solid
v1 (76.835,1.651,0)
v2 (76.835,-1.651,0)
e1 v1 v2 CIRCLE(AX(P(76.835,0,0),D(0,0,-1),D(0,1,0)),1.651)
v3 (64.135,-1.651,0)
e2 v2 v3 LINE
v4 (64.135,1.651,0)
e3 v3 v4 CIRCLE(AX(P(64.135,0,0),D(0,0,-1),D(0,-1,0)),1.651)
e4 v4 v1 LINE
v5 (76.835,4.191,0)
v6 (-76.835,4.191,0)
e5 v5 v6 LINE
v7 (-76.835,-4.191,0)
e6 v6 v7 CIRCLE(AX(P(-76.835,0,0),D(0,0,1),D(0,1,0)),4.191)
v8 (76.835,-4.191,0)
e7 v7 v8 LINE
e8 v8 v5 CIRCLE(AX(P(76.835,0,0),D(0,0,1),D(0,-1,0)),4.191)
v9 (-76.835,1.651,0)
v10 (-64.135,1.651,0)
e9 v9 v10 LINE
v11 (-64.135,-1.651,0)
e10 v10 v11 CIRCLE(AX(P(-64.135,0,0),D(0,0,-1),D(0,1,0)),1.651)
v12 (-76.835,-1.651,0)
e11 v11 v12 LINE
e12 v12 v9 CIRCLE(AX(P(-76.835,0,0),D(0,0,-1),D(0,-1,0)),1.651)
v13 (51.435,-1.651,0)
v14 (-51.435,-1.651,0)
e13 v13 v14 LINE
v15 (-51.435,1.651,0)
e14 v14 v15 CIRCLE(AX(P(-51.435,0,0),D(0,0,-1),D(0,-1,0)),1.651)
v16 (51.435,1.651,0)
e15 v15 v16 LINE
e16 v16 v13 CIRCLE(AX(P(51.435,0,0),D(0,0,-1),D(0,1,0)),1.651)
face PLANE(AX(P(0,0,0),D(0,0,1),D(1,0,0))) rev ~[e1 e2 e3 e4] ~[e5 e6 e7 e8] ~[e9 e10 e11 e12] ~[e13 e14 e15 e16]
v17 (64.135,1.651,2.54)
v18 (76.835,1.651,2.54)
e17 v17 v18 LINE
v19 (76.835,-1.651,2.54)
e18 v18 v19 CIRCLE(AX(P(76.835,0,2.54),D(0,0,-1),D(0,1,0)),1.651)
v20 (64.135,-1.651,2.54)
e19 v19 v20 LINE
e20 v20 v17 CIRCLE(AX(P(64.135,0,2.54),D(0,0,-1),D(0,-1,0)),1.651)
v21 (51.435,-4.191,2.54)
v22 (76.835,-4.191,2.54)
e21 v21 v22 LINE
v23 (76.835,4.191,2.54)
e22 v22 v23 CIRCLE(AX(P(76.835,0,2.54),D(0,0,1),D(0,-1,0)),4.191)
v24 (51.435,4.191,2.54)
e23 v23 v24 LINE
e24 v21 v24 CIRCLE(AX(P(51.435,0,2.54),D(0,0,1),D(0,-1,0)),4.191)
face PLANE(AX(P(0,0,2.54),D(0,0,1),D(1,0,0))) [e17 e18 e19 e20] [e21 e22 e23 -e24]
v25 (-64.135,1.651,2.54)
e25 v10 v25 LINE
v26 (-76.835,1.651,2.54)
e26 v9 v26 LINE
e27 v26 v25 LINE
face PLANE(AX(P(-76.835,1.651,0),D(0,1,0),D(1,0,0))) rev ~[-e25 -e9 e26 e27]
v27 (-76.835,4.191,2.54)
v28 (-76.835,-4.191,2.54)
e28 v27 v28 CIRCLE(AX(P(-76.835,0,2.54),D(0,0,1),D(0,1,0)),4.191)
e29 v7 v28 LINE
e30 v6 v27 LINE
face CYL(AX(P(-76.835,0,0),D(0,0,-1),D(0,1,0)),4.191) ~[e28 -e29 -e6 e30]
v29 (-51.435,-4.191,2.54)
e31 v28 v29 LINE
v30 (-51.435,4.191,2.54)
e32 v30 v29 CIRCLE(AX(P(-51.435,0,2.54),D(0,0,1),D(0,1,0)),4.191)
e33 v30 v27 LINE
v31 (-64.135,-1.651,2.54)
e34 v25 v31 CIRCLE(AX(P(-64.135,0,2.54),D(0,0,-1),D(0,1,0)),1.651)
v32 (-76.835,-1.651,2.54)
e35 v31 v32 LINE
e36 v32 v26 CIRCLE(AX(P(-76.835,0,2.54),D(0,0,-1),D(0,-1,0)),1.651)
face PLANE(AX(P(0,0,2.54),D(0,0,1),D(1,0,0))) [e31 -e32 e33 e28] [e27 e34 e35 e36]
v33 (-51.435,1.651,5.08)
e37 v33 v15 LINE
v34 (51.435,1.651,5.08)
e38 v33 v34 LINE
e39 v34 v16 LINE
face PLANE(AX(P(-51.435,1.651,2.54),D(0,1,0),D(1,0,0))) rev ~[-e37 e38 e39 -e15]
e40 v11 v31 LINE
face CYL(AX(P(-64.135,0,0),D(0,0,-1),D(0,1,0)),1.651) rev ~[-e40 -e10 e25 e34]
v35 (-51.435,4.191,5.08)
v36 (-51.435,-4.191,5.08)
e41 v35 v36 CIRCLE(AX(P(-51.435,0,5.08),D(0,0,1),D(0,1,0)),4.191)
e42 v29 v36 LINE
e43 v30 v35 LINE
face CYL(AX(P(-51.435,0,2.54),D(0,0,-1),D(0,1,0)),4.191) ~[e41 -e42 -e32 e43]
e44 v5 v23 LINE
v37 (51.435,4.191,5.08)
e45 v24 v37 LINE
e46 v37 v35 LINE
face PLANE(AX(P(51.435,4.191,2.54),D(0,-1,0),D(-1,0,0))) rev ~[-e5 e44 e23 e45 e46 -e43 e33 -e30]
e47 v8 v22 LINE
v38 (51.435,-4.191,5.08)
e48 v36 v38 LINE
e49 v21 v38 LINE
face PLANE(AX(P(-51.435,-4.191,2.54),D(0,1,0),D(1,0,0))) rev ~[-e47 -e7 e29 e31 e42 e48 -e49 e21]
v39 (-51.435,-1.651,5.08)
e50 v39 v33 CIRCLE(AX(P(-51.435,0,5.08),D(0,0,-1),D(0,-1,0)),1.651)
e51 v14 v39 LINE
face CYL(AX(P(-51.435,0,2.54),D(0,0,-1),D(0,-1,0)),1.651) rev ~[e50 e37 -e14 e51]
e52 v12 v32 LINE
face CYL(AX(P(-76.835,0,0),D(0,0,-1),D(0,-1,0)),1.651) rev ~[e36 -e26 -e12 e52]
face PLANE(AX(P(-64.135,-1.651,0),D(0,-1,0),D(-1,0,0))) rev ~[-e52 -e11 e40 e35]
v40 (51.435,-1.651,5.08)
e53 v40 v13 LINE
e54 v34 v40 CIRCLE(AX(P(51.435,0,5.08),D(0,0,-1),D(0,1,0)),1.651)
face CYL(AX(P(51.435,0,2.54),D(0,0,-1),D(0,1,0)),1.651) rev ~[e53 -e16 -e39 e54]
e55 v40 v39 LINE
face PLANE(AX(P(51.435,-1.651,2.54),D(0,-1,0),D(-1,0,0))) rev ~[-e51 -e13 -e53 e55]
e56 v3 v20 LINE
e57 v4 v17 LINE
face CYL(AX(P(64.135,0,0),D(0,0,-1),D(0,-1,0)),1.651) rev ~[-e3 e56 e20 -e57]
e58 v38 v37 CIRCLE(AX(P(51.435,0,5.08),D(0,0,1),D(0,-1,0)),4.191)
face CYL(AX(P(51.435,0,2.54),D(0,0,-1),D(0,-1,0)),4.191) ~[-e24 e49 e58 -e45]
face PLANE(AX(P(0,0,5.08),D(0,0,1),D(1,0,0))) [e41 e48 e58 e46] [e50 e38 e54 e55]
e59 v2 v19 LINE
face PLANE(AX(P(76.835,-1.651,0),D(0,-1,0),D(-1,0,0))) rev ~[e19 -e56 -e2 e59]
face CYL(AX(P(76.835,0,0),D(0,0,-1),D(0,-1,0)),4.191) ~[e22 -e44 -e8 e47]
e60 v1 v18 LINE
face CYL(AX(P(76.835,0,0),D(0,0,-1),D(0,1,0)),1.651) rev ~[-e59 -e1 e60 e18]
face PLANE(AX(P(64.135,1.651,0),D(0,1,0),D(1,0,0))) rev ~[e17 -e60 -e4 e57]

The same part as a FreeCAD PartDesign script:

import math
import FreeCAD as App
import Part
import Sketcher
from FreeCAD import Vector
Q = App.Units.Quantity

doc = App.newDocument("Part")
body = doc.addObject("PartDesign::Body", "Body")

# Sketch on XY plane
sketch1 = body.newObject("Sketcher::SketchObject", "Sketch")
sketch1.AttachmentSupport = (doc.getObject("XY_Plane"), [""])
sketch1.MapMode = "FlatFace"
sketch1.addGeometry(Part.LineSegment(Vector(76.8, 4.2, 0), Vector(-76.8, 4.2, 0)), False)
sketch1.addGeometry(Part.ArcOfCircle(Part.Circle(Vector(-76.8, 0, 0), Vector(0, 0, 1), 4.2), math.radians(90), math.radians(270)), False)
sketch1.addGeometry(Part.LineSegment(Vector(-76.8, -4.2, 0), Vector(76.8, -4.2, 0)), False)
sketch1.addGeometry(Part.ArcOfCircle(Part.Circle(Vector(76.8, 0, 0), Vector(0, 0, 1), 4.2), math.radians(-90), math.radians(90)), False)
sketch1.addGeometry(Part.LineSegment(Vector(-64.1, -1.7, 0), Vector(-76.8, -1.7, 0)), False)
sketch1.addGeometry(Part.ArcOfCircle(Part.Circle(Vector(-76.8, 0, 0), Vector(0, 0, 1), 1.7), math.radians(90), math.radians(270)), False)
sketch1.addGeometry(Part.LineSegment(Vector(-76.8, 1.7, 0), Vector(-64.1, 1.7, 0)), False)
sketch1.addGeometry(Part.ArcOfCircle(Part.Circle(Vector(-64.1, 0, 0), Vector(0, 0, 1), 1.7), math.radians(-90), math.radians(90)), False)
sketch1.addGeometry(Part.ArcOfCircle(Part.Circle(Vector(51.4, 0, 0), Vector(0, 0, 1), 1.7), math.radians(-90), math.radians(90)), False)
sketch1.addGeometry(Part.LineSegment(Vector(51.4, -1.7, 0), Vector(-51.4, -1.7, 0)), False)
sketch1.addGeometry(Part.ArcOfCircle(Part.Circle(Vector(-51.4, 0, 0), Vector(0, 0, 1), 1.7), math.radians(90), math.radians(270)), False)
sketch1.addGeometry(Part.LineSegment(Vector(-51.4, 1.7, 0), Vector(51.4, 1.7, 0)), False)
sketch1.addGeometry(Part.LineSegment(Vector(64.1, 1.7, 0), Vector(76.8, 1.7, 0)), False)
sketch1.addGeometry(Part.ArcOfCircle(Part.Circle(Vector(76.8, 0, 0), Vector(0, 0, 1), 1.7), math.radians(-90), math.radians(90)), False)
sketch1.addGeometry(Part.LineSegment(Vector(76.8, -1.7, 0), Vector(64.1, -1.7, 0)), False)
sketch1.addGeometry(Part.ArcOfCircle(Part.Circle(Vector(64.1, 0, 0), Vector(0, 0, 1), 1.7), math.radians(90), math.radians(270)), False)
sketch1.addConstraint(Sketcher.Constraint("Tangent", 0, 2, 1, 1))
sketch1.addConstraint(Sketcher.Constraint("Tangent", 1, 2, 2, 1))
sketch1.addConstraint(Sketcher.Constraint("Tangent", 2, 2, 3, 1))
sketch1.addConstraint(Sketcher.Constraint("Tangent", 3, 2, 0, 1))
sketch1.addConstraint(Sketcher.Constraint("Tangent", 4, 2, 5, 2))
sketch1.addConstraint(Sketcher.Constraint("Tangent", 5, 1, 6, 1))
sketch1.addConstraint(Sketcher.Constraint("Tangent", 6, 2, 7, 2))
sketch1.addConstraint(Sketcher.Constraint("Tangent", 7, 1, 4, 1))
sketch1.addConstraint(Sketcher.Constraint("Tangent", 8, 1, 9, 1))
sketch1.addConstraint(Sketcher.Constraint("Tangent", 9, 2, 10, 2))
sketch1.addConstraint(Sketcher.Constraint("Tangent", 10, 1, 11, 1))
sketch1.addConstraint(Sketcher.Constraint("Tangent", 11, 2, 8, 2))
sketch1.addConstraint(Sketcher.Constraint("Tangent", 12, 2, 13, 2))
sketch1.addConstraint(Sketcher.Constraint("Tangent", 13, 1, 14, 1))
sketch1.addConstraint(Sketcher.Constraint("Tangent", 14, 2, 15, 2))
sketch1.addConstraint(Sketcher.Constraint("Tangent", 15, 1, 12, 1))
sketch1.addConstraint(Sketcher.Constraint("Horizontal", 0))
sketch1.addConstraint(Sketcher.Constraint("Horizontal", 2))
sketch1.addConstraint(Sketcher.Constraint("Horizontal", 4))
sketch1.addConstraint(Sketcher.Constraint("Horizontal", 6))
sketch1.addConstraint(Sketcher.Constraint("Horizontal", 9))
sketch1.addConstraint(Sketcher.Constraint("Horizontal", 11))
sketch1.addConstraint(Sketcher.Constraint("Horizontal", 12))
sketch1.addConstraint(Sketcher.Constraint("Horizontal", 14))
sketch1.addConstraint(Sketcher.Constraint("Coincident", 5, 3, 1, 3))
sketch1.addConstraint(Sketcher.Constraint("Coincident", 13, 3, 3, 3))
sketch1.addConstraint(Sketcher.Constraint("Equal", 7, 8))
sketch1.addConstraint(Sketcher.Constraint("Equal", 10, 13))
sketch1.addConstraint(Sketcher.Constraint("Symmetric", 1, 3, 3, 3, -1, 1))
sketch1.addConstraint(Sketcher.Constraint("Symmetric", 8, 3, 10, 3, -1, 1))
sketch1.addConstraint(Sketcher.Constraint("Equal", 6, 12))
sketch1.addConstraint(Sketcher.Constraint("DistanceX", 4, 2, 4, 1, Q("0.5 in")))
sketch1.addConstraint(Sketcher.Constraint("Radius", 1, Q("0.165 in")))
sketch1.addConstraint(Sketcher.Constraint("Radius", 5, Q("0.065 in")))
sketch1.addConstraint(Sketcher.Constraint("DistanceX", 8, 3, 3, 3, Q("1 in")))
sketch1.addConstraint(Sketcher.Constraint("DistanceX", 0, 2, 0, 1, Q("6.05 in")))
pad1 = body.newObject("PartDesign::Pad", "Pad")
pad1.Profile = sketch1
pad1.Length = Q("0.1 in")

# Sketch on XY plane
sketch2 = body.newObject("Sketcher::SketchObject", "Sketch001")
sketch2.AttachmentSupport = (doc.getObject("XY_Plane"), [""])
sketch2.MapMode = "FlatFace"
sketch2.AttachmentOffset = App.Placement(Vector(0, 0, 0.1 * 25.4), App.Rotation())
sketch2.addGeometry(Part.LineSegment(Vector(51.4, 4.2, 0), Vector(-51.4, 4.2, 0)), False)
sketch2.addGeometry(Part.ArcOfCircle(Part.Circle(Vector(-51.4, 0, 0), Vector(0, 0, 1), 4.2), math.radians(90), math.radians(270)), False)
sketch2.addGeometry(Part.LineSegment(Vector(-51.4, -4.2, 0), Vector(51.4, -4.2, 0)), False)
sketch2.addGeometry(Part.ArcOfCircle(Part.Circle(Vector(51.4, 0, 0), Vector(0, 0, 1), 4.2), math.radians(-90), math.radians(90)), False)
sketch2.addGeometry(Part.LineSegment(Vector(51.4, -1.7, 0), Vector(-51.4, -1.7, 0)), False)
sketch2.addGeometry(Part.ArcOfCircle(Part.Circle(Vector(-51.4, 0, 0), Vector(0, 0, 1), 1.7), math.radians(90), math.radians(270)), False)
sketch2.addGeometry(Part.LineSegment(Vector(-51.4, 1.7, 0), Vector(51.4, 1.7, 0)), False)
sketch2.addGeometry(Part.ArcOfCircle(Part.Circle(Vector(51.4, 0, 0), Vector(0, 0, 1), 1.7), math.radians(-90), math.radians(90)), False)
sketch2.addConstraint(Sketcher.Constraint("Tangent", 0, 2, 1, 1))
sketch2.addConstraint(Sketcher.Constraint("Tangent", 1, 2, 2, 1))
sketch2.addConstraint(Sketcher.Constraint("Tangent", 2, 2, 3, 1))
sketch2.addConstraint(Sketcher.Constraint("Tangent", 3, 2, 0, 1))
sketch2.addConstraint(Sketcher.Constraint("Tangent", 4, 2, 5, 2))
sketch2.addConstraint(Sketcher.Constraint("Tangent", 5, 1, 6, 1))
sketch2.addConstraint(Sketcher.Constraint("Tangent", 6, 2, 7, 2))
sketch2.addConstraint(Sketcher.Constraint("Tangent", 7, 1, 4, 1))
sketch2.addConstraint(Sketcher.Constraint("Horizontal", 0))
sketch2.addConstraint(Sketcher.Constraint("Horizontal", 2))
sketch2.addConstraint(Sketcher.Constraint("Horizontal", 4))
sketch2.addConstraint(Sketcher.Constraint("Horizontal", 6))
sketch2.addConstraint(Sketcher.Constraint("Coincident", 5, 3, 1, 3))
sketch2.addConstraint(Sketcher.Constraint("Symmetric", 1, 3, 3, 3, -1, 1))
sketch2.addConstraint(Sketcher.Constraint("Vertical", 7, 3, 2, 2))
sketch2.addConstraint(Sketcher.Constraint("Radius", 1, Q("0.165 in")))
sketch2.addConstraint(Sketcher.Constraint("Radius", 5, Q("0.065 in")))
sketch2.addConstraint(Sketcher.Constraint("DistanceX", 0, 2, 0, 1, Q("4.05 in")))
pad2 = body.newObject("PartDesign::Pad", "Pad001")
pad2.Profile = sketch2
pad2.Length = Q("0.1 in")

doc.recompute()
